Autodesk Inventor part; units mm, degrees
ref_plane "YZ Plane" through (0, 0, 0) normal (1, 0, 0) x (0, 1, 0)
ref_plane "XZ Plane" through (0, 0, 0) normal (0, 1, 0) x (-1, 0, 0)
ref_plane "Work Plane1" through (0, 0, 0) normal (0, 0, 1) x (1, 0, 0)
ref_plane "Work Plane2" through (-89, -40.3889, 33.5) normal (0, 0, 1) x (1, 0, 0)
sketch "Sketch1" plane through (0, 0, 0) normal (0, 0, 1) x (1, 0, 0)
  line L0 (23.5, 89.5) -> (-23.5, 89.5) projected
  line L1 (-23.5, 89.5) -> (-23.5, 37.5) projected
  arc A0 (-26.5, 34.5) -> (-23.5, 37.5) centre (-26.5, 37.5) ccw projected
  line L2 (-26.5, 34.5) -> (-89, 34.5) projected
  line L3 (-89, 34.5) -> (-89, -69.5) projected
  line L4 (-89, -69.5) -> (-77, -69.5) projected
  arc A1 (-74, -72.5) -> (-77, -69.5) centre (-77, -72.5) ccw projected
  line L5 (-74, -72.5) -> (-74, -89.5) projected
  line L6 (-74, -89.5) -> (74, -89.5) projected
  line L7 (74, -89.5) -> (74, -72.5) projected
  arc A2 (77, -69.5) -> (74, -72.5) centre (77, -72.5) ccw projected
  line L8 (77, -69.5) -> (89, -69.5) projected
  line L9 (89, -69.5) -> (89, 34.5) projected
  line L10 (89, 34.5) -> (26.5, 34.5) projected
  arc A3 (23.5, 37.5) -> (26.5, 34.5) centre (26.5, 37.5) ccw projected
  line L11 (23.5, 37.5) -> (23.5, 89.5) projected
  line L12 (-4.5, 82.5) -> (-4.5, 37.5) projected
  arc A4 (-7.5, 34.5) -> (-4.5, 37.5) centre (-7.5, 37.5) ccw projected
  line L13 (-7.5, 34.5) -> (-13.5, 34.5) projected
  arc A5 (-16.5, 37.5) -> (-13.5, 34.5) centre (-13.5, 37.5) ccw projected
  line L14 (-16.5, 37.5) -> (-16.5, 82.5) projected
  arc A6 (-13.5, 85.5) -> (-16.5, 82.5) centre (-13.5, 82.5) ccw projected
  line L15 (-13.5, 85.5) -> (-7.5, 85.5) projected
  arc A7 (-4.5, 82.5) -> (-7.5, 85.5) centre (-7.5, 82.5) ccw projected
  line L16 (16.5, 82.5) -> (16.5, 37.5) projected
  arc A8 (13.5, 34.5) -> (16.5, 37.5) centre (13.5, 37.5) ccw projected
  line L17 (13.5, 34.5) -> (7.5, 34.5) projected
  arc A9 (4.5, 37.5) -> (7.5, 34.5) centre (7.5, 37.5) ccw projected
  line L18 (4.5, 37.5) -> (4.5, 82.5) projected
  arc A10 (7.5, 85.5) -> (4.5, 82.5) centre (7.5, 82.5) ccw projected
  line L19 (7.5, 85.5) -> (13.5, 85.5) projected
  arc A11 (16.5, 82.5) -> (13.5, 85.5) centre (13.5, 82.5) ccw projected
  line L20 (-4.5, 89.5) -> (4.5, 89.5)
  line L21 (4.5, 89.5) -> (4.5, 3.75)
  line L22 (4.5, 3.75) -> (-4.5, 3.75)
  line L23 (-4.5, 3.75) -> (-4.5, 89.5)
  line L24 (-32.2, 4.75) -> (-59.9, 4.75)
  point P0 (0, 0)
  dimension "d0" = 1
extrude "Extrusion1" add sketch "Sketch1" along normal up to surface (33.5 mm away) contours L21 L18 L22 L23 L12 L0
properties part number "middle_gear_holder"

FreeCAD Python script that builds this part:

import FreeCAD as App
import Part
import Sketcher
Q = App.Units.Quantity


def add_polygon(sketch, points):
    """Adds a closed chain of lines whose ends are joined by coincident constraints."""
    first, n = sketch.GeometryCount, len(points)
    for a, b in zip(points, points[1:] + points[:1]):
        sketch.addGeometry(Part.LineSegment(App.Vector(*a, 0), App.Vector(*b, 0)), False)
    for i in range(n):
        sketch.addConstraint(Sketcher.Constraint("Coincident", first + i, 2, first + (i + 1) % n, 1))

doc = App.newDocument("Part")
body = doc.addObject("PartDesign::Body", "Body")

# Sketch on XY plane
sketch1 = doc.addObject("Sketcher::SketchObject", "Sketch")
body.addObject(sketch1)
sketch1.AttachmentSupport = (doc.XY_Plane, [""])
sketch1.MapMode = "FlatFace"
add_polygon(sketch1, [(4, 4), (4, 90), (-4, 90), (-4, 4)])  # lines 0-3
sketch1.addConstraint(Sketcher.Constraint("Vertical", 0))
sketch1.addConstraint(Sketcher.Constraint("Horizontal", 1))
sketch1.addConstraint(Sketcher.Constraint("Vertical", 2))
sketch1.addConstraint(Sketcher.Constraint("Horizontal", 3))
sketch1.addConstraint(Sketcher.Constraint("DistanceX", 1, 2, 1, 1, Q("9 mm")))
sketch1.addConstraint(Sketcher.Constraint("DistanceY", 0, 1, 0, 2, Q("85.75 mm")))
sketch1.addConstraint(Sketcher.Constraint("DistanceX", -1, 1, 0, 2, Q("4.5 mm")))
sketch1.addConstraint(Sketcher.Constraint("DistanceY", -1, 1, 0, 2, Q("89.5 mm")))
pad1 = doc.addObject("PartDesign::Pad", "Pad")
body.addObject(pad1)
pad1.Profile = sketch1
pad1.Length = 33.5

doc.recompute()
